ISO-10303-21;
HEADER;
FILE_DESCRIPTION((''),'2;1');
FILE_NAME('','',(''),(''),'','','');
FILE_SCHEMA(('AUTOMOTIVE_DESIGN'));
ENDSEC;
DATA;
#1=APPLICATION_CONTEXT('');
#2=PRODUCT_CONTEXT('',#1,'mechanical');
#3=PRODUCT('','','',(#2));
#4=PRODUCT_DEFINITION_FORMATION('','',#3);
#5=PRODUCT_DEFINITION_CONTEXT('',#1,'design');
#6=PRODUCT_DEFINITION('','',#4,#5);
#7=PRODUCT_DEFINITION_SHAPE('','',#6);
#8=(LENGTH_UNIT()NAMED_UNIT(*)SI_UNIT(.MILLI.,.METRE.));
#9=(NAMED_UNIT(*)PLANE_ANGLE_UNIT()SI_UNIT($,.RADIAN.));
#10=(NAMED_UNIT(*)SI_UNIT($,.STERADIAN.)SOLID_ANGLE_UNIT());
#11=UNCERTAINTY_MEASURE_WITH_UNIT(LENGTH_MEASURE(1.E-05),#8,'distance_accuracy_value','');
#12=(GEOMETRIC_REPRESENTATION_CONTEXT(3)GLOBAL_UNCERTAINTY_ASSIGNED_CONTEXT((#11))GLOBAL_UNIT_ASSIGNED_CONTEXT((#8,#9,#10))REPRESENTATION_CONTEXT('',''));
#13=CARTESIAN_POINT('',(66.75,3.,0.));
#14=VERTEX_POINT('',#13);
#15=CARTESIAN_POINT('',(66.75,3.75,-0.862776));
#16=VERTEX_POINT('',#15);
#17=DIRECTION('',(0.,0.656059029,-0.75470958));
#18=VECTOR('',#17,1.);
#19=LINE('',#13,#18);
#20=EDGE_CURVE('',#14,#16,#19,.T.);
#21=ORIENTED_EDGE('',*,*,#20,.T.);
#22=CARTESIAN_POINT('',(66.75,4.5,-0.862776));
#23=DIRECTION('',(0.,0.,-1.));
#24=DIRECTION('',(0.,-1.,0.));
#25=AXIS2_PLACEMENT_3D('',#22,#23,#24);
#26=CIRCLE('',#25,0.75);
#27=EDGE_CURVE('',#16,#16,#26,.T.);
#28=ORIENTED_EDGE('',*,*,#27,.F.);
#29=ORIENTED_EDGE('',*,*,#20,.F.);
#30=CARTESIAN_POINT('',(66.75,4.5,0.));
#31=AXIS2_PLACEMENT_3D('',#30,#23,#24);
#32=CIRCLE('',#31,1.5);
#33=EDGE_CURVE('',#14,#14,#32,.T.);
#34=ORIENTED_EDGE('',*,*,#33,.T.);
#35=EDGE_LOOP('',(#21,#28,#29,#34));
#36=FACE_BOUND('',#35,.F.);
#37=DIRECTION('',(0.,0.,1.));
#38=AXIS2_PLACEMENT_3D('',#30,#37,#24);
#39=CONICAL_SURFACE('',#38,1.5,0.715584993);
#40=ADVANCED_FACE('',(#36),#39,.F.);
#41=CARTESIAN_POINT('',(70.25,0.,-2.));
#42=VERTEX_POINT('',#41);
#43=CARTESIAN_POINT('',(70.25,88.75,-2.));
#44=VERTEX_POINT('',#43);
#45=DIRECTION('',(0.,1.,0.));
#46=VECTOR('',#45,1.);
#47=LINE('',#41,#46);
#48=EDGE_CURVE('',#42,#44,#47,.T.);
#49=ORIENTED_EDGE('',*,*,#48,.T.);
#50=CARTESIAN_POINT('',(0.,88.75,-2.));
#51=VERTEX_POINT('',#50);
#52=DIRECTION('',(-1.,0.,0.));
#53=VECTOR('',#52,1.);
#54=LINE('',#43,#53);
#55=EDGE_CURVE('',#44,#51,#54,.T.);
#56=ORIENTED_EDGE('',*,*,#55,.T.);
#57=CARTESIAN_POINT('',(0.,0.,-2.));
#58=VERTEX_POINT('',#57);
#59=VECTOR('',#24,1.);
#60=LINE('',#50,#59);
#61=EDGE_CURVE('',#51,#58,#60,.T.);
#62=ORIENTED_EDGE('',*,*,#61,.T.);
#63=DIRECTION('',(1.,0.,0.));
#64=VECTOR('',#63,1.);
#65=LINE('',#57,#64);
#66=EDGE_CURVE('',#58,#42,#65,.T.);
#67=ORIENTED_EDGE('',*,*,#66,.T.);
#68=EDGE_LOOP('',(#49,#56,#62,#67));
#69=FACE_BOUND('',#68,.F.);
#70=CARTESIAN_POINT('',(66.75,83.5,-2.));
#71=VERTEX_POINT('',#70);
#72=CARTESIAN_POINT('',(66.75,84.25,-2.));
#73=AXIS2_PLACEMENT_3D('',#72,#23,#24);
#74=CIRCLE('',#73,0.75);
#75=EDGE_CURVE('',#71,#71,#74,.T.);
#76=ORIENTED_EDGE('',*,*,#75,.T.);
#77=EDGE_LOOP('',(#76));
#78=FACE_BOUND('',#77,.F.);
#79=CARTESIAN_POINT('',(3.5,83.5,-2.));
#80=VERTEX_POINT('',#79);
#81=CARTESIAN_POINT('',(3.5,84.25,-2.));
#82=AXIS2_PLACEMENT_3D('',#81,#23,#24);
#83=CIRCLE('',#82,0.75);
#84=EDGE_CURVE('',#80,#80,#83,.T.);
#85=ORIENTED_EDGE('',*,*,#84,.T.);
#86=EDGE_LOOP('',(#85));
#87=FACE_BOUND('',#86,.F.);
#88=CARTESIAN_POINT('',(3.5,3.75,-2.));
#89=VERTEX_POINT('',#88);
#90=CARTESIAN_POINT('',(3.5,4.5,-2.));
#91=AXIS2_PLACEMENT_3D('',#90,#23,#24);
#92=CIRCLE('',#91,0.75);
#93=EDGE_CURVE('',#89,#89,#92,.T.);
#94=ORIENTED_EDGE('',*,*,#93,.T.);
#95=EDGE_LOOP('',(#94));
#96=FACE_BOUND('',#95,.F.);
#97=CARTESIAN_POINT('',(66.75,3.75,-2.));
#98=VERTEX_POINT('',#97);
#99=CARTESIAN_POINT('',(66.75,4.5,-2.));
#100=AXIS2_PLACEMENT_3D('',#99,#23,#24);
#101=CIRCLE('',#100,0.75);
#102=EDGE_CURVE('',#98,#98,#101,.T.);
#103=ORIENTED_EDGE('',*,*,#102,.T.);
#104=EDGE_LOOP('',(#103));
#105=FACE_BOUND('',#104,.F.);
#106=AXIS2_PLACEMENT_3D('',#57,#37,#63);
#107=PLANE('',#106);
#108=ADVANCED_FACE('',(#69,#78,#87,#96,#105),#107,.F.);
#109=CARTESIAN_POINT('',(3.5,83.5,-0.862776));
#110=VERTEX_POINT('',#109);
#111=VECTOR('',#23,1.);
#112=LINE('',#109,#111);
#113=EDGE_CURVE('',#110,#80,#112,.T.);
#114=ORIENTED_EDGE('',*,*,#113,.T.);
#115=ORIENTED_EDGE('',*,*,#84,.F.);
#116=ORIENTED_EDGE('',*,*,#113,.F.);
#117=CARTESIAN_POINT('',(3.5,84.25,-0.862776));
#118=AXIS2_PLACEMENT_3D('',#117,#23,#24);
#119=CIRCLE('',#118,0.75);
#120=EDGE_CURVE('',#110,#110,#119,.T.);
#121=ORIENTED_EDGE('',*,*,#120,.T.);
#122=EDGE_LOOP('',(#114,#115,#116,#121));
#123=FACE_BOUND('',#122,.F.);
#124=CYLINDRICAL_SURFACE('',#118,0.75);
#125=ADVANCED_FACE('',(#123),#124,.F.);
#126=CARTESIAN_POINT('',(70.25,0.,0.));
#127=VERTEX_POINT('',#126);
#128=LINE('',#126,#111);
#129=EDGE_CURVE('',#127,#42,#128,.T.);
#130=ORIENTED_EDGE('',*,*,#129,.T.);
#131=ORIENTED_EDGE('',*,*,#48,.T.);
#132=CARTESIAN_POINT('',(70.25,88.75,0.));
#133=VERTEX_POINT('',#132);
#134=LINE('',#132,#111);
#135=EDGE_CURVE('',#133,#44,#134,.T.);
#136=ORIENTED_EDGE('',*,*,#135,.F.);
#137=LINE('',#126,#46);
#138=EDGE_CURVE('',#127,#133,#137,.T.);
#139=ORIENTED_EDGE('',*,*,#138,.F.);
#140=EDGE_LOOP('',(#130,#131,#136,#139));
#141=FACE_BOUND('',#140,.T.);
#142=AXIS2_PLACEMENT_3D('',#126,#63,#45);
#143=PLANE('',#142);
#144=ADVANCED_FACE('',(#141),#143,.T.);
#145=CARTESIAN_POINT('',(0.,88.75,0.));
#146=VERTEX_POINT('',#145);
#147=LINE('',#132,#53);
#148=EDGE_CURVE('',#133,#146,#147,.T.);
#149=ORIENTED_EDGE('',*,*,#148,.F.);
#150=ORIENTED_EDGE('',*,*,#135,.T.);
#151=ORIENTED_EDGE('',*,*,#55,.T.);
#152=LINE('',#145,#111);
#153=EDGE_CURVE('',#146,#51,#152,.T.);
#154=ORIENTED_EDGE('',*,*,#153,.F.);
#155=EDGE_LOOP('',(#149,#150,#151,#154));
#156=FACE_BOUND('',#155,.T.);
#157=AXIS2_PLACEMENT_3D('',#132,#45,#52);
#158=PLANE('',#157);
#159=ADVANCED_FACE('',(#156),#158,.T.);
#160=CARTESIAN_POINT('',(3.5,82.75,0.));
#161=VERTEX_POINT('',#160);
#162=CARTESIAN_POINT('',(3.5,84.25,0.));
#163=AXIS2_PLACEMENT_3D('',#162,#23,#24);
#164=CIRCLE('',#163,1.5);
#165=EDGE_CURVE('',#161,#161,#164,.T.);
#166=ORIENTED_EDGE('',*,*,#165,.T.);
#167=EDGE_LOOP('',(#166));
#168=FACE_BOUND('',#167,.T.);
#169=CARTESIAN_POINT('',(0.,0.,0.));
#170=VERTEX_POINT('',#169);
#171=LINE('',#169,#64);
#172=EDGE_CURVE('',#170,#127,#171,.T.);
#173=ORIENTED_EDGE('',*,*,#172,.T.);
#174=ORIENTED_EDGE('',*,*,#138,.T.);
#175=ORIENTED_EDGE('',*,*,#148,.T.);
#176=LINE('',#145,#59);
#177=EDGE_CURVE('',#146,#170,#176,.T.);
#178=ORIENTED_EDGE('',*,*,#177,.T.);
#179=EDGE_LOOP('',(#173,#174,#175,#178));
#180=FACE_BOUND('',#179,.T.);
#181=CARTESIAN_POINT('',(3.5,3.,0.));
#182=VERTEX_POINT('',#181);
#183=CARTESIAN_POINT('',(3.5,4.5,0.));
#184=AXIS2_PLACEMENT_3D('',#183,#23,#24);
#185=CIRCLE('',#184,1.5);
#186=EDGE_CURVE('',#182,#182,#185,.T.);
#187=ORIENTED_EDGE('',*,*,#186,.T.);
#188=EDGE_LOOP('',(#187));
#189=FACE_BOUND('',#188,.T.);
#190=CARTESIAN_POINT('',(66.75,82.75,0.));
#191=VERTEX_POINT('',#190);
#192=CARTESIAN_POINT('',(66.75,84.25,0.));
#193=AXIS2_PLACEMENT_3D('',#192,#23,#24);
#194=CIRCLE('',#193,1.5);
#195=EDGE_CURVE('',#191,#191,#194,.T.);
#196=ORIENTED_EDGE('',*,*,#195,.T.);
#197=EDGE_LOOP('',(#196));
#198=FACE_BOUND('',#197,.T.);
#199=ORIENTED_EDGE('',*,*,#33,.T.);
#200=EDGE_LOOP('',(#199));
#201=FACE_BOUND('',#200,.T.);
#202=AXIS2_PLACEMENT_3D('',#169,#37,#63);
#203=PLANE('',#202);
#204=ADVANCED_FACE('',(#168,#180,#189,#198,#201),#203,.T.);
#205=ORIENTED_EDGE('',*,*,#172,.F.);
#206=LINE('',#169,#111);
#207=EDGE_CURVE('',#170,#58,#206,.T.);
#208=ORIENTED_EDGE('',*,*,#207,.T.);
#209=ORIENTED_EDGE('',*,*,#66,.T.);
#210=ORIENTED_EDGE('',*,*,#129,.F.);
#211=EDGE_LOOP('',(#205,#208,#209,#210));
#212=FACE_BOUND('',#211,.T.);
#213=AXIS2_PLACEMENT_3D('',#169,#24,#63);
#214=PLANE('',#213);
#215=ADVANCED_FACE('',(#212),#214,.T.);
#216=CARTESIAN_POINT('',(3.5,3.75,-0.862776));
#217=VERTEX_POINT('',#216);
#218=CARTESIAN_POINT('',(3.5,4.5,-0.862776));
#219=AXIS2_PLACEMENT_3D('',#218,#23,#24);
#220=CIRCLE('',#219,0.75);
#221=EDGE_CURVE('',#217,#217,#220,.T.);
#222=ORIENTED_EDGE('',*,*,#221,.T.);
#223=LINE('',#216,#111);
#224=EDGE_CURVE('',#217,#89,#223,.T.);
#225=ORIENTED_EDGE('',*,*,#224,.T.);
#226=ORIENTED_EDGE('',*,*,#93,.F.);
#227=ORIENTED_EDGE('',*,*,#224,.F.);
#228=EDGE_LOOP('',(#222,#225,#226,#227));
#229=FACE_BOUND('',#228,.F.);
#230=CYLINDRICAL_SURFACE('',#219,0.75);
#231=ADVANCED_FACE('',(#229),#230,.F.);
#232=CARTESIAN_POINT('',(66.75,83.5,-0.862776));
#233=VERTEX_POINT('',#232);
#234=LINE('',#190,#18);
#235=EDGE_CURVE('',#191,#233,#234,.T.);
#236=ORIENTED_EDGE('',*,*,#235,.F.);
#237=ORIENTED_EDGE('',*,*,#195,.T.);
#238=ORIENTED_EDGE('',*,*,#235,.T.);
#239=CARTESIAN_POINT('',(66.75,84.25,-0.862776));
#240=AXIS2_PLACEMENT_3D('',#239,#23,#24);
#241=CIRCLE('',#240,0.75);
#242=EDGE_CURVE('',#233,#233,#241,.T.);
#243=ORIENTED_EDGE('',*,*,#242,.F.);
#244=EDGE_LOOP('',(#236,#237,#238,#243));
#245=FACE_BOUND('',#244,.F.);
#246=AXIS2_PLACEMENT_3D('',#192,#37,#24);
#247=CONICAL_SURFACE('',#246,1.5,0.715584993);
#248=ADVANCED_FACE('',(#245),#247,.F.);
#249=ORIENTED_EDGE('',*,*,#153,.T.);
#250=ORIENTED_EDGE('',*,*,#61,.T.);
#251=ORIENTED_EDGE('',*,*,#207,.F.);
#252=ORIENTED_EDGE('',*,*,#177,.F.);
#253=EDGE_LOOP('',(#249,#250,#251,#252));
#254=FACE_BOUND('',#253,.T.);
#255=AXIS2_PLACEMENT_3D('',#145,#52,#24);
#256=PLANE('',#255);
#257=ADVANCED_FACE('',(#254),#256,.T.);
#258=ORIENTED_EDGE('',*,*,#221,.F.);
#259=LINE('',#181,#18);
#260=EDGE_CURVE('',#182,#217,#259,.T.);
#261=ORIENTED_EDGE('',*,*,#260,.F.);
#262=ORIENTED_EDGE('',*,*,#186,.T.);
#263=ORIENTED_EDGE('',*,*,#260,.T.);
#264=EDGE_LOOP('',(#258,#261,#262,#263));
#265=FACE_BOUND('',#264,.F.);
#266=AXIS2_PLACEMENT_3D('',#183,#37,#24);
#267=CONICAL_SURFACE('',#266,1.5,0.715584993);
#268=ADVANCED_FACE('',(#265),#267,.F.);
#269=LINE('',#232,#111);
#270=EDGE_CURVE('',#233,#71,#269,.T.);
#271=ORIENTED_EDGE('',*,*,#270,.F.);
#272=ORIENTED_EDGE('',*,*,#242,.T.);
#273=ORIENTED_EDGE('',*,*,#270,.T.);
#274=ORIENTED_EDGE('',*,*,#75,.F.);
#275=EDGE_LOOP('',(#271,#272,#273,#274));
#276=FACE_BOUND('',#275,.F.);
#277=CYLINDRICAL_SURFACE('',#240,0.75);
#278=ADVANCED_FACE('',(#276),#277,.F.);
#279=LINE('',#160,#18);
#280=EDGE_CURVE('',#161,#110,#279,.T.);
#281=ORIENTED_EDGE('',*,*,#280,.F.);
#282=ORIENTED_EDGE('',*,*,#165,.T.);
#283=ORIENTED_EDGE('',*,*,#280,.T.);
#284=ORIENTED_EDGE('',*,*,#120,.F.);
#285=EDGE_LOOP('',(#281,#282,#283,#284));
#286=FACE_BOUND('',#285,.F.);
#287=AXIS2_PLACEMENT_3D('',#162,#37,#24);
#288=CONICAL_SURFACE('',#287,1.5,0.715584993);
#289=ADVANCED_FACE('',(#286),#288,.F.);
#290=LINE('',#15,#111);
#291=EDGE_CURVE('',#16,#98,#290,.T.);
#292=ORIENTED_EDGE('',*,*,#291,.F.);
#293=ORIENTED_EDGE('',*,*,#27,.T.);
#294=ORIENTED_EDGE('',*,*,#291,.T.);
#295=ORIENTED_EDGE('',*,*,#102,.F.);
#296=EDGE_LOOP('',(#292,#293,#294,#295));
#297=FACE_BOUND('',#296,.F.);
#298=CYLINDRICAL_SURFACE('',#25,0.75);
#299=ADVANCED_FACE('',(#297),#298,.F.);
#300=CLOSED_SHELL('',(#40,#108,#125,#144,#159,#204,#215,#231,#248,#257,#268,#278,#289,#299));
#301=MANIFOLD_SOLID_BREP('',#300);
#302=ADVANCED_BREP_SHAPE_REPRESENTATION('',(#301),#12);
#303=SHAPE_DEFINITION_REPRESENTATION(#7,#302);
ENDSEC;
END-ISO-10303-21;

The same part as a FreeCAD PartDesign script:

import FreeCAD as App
import Part
import Sketcher
Q = App.Units.Quantity

doc = App.newDocument("Part")
body = doc.addObject("PartDesign::Body", "Body")

sketch1 = body.newObject("Sketcher::SketchObject", "Sketch")
sketch1.AttachmentSupport = (doc.getObject("XY_Plane"), [""])
sketch1.MapMode = "FlatFace"
sketch1.addGeometry(Part.LineSegment(App.Vector(0, 88.75, 0), App.Vector(0, 0, 0)), False)
sketch1.addGeometry(Part.LineSegment(App.Vector(0, 0, 0), App.Vector(70.25, 0, 0)), False)
sketch1.addGeometry(Part.LineSegment(App.Vector(70.25, 0, 0), App.Vector(70.25, 88.75, 0)), False)
sketch1.addGeometry(Part.LineSegment(App.Vector(70.25, 88.75, 0), App.Vector(0, 88.75, 0)), False)
sketch1.addConstraint(Sketcher.Constraint("Coincident", 0, 2, 1, 1))
sketch1.addConstraint(Sketcher.Constraint("Coincident", 1, 2, 2, 1))
sketch1.addConstraint(Sketcher.Constraint("Coincident", 2, 2, 3, 1))
sketch1.addConstraint(Sketcher.Constraint("Coincident", 3, 2, 0, 1))
sketch1.addConstraint(Sketcher.Constraint("Vertical", 0))
sketch1.addConstraint(Sketcher.Constraint("Horizontal", 1))
sketch1.addConstraint(Sketcher.Constraint("Vertical", 2))
sketch1.addConstraint(Sketcher.Constraint("Horizontal", 3))
sketch1.addConstraint(Sketcher.Constraint("Coincident", 0, 2, -1, 1))
sketch1.addConstraint(Sketcher.Constraint("DistanceX", 1, 1, 1, 2, Q("70.25 mm")))
sketch1.addConstraint(Sketcher.Constraint("DistanceY", 0, 2, 0, 1, Q("88.75 mm")))
pad1 = body.newObject("PartDesign::Pad", "Pad")
pad1.Profile = sketch1
pad1.Length = 2
pad1.Reversed = True

sketch2 = body.newObject("Sketcher::SketchObject", "Sketch001")
sketch2.AttachmentSupport = (doc.getObject("XY_Plane"), [""])
sketch2.MapMode = "FlatFace"
sketch2.addGeometry(Part.Circle(App.Vector(66.75, 84.25, 0), App.Vector(0, 0, 1), 0.75), False)
sketch2.addGeometry(Part.Circle(App.Vector(3.5, 84.25, 0), App.Vector(0, 0, 1), 0.75), False)
sketch2.addGeometry(Part.Circle(App.Vector(66.75, 4.5, 0), App.Vector(0, 0, 1), 0.75), False)
sketch2.addGeometry(Part.Circle(App.Vector(3.5, 4.5, 0), App.Vector(0, 0, 1), 0.75), False)
sketch2.addConstraint(Sketcher.Constraint("Equal", 0, 1))
sketch2.addConstraint(Sketcher.Constraint("Equal", 1, 2))
sketch2.addConstraint(Sketcher.Constraint("Equal", 2, 3))
sketch2.addConstraint(Sketcher.Constraint("Horizontal", 0, 3, 1, 3))
sketch2.addConstraint(Sketcher.Constraint("Horizontal", 2, 3, 3, 3))
sketch2.addConstraint(Sketcher.Constraint("Vertical", 0, 3, 2, 3))
sketch2.addConstraint(Sketcher.Constraint("Vertical", 1, 3, 3, 3))
sketch2.addConstraint(Sketcher.Constraint("Diameter", 0, Q("1.5 mm")))
sketch2.addConstraint(Sketcher.Constraint("DistanceX", -1, 1, 1, 3, Q("3.5 mm")))
sketch2.addConstraint(Sketcher.Constraint("DistanceY", -1, 1, 2, 3, Q("4.5 mm")))
sketch2.addConstraint(Sketcher.Constraint("DistanceX", -1, 1, 0, 3, Q("66.75 mm")))
sketch2.addConstraint(Sketcher.Constraint("DistanceY", -1, 1, 0, 3, Q("84.25 mm")))
doc.recompute()
hole = body.newObject("PartDesign::Hole", "Hole")
hole.Profile = sketch2
hole.ThreadType = "None"
hole.Diameter = 1.5
hole.DepthType = "ThroughAll"
hole.HoleCutType = "Countersink"
hole.HoleCutDiameter = 3
hole.HoleCutCountersinkAngle = 82

doc.recompute()
